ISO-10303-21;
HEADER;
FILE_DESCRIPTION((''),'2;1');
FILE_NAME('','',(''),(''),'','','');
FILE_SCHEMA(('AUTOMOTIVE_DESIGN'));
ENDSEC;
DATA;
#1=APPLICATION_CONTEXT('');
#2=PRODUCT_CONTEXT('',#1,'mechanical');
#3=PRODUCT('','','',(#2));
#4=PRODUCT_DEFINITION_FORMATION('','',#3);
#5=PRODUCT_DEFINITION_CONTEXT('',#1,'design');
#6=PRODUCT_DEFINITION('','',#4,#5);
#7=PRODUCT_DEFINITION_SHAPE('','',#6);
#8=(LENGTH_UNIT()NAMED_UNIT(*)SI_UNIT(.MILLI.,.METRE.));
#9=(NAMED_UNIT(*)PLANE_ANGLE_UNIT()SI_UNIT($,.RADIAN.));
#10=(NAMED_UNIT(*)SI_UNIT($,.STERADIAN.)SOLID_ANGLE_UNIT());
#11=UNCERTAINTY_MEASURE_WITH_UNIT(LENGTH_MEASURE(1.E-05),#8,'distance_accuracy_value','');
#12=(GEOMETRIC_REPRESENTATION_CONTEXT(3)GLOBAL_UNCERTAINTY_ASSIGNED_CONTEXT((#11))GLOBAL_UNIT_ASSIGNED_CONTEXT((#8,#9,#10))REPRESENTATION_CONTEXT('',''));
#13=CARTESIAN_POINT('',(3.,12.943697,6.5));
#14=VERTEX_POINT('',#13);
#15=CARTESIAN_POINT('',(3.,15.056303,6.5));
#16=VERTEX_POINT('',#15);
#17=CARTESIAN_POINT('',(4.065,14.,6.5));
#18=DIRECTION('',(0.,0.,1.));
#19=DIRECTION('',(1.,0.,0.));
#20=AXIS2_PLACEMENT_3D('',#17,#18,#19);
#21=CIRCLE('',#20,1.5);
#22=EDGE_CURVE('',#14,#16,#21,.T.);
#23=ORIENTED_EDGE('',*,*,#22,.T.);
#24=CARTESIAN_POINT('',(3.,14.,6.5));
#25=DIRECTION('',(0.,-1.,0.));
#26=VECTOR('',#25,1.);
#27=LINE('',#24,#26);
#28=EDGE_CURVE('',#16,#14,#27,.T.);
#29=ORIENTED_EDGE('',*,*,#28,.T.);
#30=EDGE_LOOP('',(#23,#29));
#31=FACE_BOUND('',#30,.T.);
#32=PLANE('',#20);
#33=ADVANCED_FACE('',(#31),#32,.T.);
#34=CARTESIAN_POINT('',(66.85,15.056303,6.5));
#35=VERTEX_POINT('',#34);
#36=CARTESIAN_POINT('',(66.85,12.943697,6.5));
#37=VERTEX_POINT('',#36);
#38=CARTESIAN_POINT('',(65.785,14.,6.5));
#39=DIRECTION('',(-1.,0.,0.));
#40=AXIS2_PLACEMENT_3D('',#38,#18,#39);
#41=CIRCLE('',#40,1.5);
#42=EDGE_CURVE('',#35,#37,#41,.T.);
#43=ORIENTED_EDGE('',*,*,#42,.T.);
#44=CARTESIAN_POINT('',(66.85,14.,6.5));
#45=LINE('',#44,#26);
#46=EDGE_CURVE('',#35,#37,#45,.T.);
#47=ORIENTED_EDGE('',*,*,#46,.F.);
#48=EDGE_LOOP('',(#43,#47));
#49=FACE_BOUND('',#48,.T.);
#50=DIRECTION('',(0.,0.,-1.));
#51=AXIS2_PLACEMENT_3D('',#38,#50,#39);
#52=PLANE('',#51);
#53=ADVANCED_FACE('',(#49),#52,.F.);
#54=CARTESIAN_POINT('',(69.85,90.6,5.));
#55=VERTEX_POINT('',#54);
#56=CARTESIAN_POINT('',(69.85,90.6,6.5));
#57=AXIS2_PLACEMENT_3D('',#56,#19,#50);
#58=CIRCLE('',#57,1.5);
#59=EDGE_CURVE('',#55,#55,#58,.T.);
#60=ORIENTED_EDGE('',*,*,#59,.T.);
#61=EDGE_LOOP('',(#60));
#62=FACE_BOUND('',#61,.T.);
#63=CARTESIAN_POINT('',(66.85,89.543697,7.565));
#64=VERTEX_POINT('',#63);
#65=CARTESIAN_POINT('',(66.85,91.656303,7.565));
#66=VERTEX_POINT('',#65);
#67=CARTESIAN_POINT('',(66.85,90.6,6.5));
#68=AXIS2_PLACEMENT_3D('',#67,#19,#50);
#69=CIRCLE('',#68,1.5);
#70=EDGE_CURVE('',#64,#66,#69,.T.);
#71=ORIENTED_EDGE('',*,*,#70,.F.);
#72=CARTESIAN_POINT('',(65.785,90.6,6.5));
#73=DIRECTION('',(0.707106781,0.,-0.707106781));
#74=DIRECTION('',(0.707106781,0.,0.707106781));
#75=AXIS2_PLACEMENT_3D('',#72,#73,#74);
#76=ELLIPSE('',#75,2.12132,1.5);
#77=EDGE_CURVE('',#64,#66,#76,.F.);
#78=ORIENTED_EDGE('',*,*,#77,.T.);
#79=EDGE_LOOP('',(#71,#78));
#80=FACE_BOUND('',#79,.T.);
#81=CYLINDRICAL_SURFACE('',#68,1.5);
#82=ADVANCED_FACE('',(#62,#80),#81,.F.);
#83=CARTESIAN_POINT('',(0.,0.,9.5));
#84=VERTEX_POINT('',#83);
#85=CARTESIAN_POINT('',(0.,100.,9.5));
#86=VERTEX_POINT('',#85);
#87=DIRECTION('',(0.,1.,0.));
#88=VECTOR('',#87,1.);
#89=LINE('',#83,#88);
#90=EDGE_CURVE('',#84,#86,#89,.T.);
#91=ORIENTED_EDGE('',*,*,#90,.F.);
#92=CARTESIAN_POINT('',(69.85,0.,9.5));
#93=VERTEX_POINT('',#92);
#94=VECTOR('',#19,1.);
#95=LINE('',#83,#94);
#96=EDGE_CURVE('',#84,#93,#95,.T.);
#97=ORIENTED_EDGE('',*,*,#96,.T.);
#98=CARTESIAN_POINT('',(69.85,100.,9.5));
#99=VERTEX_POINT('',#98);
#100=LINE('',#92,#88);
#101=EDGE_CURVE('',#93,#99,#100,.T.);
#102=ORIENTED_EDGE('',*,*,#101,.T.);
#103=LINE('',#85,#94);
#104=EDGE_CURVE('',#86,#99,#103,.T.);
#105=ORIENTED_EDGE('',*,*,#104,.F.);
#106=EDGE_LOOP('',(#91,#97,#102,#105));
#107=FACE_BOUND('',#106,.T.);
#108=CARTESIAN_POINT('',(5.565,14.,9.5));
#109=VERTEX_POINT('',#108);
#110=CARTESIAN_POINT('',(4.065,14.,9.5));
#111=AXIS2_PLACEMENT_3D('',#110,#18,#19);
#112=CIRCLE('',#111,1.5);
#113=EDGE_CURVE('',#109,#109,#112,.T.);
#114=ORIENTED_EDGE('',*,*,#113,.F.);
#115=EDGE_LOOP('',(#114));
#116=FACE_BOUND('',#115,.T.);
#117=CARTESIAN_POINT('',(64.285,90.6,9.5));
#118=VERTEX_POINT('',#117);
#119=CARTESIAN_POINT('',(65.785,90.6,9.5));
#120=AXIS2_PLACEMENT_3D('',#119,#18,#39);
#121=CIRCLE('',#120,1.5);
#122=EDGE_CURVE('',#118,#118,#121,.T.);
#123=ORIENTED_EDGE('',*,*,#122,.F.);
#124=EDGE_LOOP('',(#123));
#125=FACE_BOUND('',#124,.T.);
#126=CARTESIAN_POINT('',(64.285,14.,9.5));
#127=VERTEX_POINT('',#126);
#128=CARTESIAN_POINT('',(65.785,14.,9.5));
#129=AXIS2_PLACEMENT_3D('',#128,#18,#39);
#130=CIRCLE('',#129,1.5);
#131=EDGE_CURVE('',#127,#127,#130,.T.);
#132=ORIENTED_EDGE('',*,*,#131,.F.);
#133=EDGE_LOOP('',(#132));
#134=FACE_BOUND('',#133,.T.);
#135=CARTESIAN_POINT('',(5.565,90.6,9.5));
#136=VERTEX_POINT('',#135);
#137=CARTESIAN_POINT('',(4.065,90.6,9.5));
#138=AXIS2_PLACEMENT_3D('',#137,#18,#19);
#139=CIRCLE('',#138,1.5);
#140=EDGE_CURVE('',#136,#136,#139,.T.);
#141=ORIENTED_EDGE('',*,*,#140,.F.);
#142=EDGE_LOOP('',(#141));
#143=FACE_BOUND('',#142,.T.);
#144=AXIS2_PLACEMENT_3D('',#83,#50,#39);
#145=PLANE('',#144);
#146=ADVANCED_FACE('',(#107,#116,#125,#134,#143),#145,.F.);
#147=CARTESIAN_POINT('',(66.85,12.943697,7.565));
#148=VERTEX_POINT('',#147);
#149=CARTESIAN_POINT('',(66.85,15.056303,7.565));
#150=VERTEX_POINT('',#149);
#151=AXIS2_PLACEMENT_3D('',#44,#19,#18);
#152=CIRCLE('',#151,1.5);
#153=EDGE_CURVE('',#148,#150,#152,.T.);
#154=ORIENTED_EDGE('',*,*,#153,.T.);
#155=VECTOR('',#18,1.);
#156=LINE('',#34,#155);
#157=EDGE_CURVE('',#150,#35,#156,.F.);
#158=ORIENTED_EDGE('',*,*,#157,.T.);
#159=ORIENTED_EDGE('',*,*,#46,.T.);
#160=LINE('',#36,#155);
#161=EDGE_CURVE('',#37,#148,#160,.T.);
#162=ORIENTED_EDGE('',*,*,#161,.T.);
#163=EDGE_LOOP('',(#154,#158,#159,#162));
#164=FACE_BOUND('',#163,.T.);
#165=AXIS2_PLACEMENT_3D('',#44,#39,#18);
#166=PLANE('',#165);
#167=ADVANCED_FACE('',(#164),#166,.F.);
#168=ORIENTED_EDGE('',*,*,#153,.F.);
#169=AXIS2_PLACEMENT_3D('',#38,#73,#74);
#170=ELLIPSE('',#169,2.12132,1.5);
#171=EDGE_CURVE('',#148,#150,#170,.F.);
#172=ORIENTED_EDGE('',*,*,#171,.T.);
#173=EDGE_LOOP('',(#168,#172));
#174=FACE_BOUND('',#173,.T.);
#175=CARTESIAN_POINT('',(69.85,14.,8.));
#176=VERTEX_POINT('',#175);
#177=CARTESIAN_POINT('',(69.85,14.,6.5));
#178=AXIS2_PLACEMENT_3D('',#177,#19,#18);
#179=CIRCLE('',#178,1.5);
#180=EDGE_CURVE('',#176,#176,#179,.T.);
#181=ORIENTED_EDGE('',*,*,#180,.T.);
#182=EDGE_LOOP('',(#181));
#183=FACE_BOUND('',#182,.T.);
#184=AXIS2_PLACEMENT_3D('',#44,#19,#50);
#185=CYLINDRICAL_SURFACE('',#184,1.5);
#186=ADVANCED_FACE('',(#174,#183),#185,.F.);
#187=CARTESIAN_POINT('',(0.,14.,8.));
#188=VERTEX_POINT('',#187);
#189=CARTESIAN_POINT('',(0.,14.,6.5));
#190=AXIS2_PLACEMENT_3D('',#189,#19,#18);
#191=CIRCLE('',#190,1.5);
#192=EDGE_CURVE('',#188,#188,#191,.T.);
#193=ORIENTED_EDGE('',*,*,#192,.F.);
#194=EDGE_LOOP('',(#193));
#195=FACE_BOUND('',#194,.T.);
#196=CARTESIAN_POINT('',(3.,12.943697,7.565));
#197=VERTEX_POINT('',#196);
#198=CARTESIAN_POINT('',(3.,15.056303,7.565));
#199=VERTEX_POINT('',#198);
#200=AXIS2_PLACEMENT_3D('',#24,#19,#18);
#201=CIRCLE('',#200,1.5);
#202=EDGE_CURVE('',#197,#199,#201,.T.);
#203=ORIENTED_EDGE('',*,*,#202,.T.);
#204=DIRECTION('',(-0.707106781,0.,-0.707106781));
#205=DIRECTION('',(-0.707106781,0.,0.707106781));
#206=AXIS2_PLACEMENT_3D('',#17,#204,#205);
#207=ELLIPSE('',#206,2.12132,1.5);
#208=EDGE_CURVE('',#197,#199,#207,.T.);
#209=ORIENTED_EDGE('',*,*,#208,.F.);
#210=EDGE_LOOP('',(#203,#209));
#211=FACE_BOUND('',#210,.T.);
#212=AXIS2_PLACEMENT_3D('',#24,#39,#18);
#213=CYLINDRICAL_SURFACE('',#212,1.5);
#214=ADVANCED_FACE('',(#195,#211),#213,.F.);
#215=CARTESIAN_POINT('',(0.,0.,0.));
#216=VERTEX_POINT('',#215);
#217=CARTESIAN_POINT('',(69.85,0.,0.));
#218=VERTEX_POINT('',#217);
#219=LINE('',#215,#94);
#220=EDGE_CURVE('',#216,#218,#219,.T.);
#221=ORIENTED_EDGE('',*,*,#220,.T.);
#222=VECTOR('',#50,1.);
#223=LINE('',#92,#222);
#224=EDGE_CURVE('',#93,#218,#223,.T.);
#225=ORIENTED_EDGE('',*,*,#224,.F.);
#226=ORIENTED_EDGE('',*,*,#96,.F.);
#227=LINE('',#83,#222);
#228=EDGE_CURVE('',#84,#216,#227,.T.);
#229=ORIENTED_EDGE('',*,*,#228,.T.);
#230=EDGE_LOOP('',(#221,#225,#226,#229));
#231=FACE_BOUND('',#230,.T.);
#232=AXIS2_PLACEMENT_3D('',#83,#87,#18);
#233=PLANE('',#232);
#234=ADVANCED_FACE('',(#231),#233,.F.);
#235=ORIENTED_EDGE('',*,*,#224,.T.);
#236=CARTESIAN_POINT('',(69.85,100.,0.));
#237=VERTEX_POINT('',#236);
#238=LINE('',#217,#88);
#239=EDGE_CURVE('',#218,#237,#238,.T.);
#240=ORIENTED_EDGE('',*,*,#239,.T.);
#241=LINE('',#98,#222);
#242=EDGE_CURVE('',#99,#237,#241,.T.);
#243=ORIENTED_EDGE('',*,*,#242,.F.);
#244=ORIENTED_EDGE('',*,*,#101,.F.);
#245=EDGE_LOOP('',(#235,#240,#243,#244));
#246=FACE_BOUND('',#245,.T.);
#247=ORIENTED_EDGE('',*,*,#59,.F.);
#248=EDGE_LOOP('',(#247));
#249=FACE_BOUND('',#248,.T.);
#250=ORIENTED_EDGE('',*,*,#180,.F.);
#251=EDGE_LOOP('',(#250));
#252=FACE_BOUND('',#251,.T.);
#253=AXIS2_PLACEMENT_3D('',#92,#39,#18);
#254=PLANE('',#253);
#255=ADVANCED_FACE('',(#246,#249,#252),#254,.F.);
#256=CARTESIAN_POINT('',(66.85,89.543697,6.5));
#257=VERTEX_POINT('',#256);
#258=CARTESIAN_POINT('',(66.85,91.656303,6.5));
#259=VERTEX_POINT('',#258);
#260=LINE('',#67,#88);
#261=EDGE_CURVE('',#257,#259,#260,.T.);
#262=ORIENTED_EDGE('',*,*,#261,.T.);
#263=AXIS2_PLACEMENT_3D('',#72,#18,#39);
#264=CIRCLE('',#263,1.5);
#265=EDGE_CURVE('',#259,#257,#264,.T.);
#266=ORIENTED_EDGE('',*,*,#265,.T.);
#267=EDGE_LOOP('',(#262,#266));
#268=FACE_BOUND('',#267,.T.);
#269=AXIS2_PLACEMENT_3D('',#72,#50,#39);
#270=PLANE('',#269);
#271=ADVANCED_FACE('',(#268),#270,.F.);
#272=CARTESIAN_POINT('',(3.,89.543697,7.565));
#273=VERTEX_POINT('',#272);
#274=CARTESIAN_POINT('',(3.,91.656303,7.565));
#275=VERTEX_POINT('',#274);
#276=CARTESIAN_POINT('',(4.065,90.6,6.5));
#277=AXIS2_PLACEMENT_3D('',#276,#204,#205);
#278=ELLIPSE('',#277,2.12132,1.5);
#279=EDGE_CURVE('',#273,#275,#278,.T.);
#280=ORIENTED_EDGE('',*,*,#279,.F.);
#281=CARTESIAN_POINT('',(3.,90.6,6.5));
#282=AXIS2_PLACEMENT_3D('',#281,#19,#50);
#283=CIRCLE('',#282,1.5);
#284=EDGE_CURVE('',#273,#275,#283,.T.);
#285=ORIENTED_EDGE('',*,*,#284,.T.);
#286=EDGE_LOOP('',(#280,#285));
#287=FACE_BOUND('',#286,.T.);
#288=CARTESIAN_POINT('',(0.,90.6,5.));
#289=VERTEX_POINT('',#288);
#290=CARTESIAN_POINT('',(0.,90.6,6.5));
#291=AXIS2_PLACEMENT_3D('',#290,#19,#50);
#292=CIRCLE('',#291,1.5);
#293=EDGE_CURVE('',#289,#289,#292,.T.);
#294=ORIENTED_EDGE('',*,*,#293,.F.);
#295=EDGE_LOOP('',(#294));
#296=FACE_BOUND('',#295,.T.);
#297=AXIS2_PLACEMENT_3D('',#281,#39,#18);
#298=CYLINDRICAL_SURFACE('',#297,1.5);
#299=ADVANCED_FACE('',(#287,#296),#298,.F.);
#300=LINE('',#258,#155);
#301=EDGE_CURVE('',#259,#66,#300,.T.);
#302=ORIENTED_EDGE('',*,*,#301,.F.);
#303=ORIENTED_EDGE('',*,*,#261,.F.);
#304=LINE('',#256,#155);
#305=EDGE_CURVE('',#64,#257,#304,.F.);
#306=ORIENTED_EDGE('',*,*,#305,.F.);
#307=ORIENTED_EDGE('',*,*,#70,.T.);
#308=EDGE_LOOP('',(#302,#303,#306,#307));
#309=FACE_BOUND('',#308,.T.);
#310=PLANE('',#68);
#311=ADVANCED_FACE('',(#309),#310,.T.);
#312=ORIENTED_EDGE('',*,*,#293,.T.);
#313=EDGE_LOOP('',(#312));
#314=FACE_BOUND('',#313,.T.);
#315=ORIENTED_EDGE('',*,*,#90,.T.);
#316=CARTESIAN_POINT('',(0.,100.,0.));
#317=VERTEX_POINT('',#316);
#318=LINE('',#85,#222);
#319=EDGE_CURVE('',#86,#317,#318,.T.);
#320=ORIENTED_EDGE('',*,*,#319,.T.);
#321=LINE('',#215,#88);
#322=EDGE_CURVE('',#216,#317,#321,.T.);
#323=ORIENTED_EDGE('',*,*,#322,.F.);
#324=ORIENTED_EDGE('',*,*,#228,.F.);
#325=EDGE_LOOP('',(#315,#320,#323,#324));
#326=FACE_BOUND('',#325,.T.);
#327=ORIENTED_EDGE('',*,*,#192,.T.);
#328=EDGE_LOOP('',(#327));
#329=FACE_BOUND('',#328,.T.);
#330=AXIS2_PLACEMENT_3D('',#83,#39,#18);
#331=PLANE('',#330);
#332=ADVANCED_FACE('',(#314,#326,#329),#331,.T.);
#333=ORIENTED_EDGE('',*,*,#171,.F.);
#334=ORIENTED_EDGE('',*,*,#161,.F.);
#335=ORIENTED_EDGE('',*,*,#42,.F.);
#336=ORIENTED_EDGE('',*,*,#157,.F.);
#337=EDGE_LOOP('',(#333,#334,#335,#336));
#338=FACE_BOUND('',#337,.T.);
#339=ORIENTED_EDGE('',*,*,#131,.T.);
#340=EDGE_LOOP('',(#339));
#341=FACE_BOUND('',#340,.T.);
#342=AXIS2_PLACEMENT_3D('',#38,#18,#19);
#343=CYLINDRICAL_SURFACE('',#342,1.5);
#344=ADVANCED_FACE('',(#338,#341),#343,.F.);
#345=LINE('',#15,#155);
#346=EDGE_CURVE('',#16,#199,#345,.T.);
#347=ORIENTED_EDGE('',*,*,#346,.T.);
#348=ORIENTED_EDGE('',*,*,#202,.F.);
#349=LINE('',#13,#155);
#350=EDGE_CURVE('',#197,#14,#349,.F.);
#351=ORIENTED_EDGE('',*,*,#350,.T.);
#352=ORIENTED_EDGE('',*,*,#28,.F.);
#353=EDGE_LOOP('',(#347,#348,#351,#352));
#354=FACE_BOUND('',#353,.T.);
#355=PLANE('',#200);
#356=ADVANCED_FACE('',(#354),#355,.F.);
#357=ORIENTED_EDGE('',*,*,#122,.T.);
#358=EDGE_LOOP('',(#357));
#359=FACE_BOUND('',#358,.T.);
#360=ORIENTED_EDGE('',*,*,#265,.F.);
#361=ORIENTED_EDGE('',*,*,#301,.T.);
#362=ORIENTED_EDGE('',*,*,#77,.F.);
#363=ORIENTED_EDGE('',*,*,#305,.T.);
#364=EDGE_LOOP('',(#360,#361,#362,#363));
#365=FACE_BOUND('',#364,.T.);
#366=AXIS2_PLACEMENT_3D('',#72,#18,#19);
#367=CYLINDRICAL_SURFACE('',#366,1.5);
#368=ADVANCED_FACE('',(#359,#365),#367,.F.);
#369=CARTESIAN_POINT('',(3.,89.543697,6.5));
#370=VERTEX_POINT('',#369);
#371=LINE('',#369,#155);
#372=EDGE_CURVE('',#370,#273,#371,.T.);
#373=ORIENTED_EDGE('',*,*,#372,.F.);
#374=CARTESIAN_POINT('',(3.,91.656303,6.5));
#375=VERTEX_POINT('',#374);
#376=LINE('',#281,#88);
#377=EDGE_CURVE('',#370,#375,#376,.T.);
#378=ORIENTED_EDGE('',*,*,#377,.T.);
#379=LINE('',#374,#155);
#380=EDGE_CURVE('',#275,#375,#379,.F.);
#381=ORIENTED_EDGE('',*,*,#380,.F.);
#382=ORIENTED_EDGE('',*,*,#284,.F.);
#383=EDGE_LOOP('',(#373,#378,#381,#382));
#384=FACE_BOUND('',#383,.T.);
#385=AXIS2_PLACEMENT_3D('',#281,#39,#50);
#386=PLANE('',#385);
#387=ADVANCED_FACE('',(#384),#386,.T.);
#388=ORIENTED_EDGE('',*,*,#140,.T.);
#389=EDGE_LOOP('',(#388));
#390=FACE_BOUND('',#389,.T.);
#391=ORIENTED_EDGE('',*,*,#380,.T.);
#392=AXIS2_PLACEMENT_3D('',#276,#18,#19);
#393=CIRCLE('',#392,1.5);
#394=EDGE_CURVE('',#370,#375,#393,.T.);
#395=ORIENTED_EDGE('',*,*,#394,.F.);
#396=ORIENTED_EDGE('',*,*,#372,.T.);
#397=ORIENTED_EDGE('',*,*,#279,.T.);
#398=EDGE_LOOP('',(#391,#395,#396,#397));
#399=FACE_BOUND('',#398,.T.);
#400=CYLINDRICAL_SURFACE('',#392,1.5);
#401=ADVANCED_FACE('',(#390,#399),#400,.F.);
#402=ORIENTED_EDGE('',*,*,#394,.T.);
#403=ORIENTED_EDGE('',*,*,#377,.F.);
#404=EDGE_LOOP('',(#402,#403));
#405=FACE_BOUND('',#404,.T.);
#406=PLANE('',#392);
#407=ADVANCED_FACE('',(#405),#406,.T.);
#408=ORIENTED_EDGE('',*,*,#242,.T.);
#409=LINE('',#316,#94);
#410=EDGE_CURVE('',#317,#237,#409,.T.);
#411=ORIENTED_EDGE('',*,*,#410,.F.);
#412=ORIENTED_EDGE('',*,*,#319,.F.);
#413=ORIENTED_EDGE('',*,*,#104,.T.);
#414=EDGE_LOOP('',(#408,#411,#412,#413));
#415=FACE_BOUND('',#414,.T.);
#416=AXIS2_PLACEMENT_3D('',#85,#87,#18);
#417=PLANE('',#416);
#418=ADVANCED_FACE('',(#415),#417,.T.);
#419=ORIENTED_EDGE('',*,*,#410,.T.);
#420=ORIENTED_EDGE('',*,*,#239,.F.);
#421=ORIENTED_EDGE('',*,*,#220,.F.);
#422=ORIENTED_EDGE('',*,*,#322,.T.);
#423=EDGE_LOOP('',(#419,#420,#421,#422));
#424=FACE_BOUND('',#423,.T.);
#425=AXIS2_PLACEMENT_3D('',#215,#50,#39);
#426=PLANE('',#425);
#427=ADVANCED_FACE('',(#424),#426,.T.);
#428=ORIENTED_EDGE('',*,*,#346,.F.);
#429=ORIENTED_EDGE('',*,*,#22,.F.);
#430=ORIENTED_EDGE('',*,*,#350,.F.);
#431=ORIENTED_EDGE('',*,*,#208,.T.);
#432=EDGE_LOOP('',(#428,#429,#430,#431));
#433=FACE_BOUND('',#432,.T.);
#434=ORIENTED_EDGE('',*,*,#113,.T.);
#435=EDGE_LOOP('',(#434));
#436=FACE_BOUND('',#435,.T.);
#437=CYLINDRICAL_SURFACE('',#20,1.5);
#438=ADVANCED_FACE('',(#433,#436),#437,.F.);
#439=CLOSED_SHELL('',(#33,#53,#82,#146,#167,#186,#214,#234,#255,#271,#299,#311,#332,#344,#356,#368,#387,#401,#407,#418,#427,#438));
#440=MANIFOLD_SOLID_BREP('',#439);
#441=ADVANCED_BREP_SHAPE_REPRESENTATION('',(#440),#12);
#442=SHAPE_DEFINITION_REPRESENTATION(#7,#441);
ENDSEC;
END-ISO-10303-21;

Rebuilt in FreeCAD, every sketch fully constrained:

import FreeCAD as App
import Part
import Sketcher
Q = App.Units.Quantity

doc = App.newDocument("Part")
body = doc.addObject("PartDesign::Body", "Body")

# Sketch on XY plane
sketch1 = body.newObject("Sketcher::SketchObject", "Sketch")
sketch1.AttachmentSupport = (doc.getObject("XY_Plane"), [""])
sketch1.MapMode = "FlatFace"
sketch1.addGeometry([
    Part.LineSegment(App.Vector(0, 100, 0), App.Vector(0, 0, 0)),
    Part.LineSegment(App.Vector(0, 0, 0), App.Vector(69.85, 0, 0)),
    Part.LineSegment(App.Vector(69.85, 0, 0), App.Vector(69.85, 100, 0)),
    Part.LineSegment(App.Vector(69.85, 100, 0), App.Vector(0, 100, 0)),
], False)
sketch1.addConstraint([
    Sketcher.Constraint("Coincident", 0, 2, 1, 1),
    Sketcher.Constraint("Coincident", 1, 2, 2, 1),
    Sketcher.Constraint("Coincident", 2, 2, 3, 1),
    Sketcher.Constraint("Coincident", 3, 2, 0, 1),
    Sketcher.Constraint("Vertical", 0),
    Sketcher.Constraint("Horizontal", 1),
    Sketcher.Constraint("Vertical", 2),
    Sketcher.Constraint("Horizontal", 3),
    Sketcher.Constraint("Coincident", 0, 2, -1, 1),
    Sketcher.Constraint("DistanceY", 0, 2, 0, 1, Q("100 mm")),
    Sketcher.Constraint("DistanceX", 1, 1, 1, 2, Q("69.85 mm")),
])
pad1 = body.newObject("PartDesign::Pad", "Pad")
pad1.Profile = sketch1
pad1.Length = 9.5

# Sketch on YZ plane
sketch2 = body.newObject("Sketcher::SketchObject", "Sketch001")
sketch2.AttachmentSupport = (doc.getObject("YZ_Plane"), [""])
sketch2.MapMode = "FlatFace"
sketch2.AttachmentOffset = App.Placement(App.Vector(0, 0, 69.85), App.Rotation())
sketch2.addGeometry([
    Part.Circle(App.Vector(90.6, 6.5, 0), App.Vector(0, 0, 1), 1.5),
    Part.Circle(App.Vector(14, 6.5, 0), App.Vector(0, 0, 1), 1.5),
], False)
sketch2.addConstraint([
    Sketcher.Constraint("Equal", 0, 1),
    Sketcher.Constraint("Horizontal", 0, 3, 1, 3),
    Sketcher.Constraint("Diameter", 0, Q("3 mm")),
    Sketcher.Constraint("DistanceX", -1, 1, 1, 3, Q("14 mm")),
    Sketcher.Constraint("DistanceX", -1, 1, 0, 3, Q("90.6 mm")),
    Sketcher.Constraint("DistanceY", -1, 1, 0, 3, Q("6.5 mm")),
])
pocket1 = body.newObject("PartDesign::Pocket", "Pocket")
pocket1.Profile = sketch2
pocket1.Length = 3
doc.recompute()

datumplane = body.newObject("PartDesign::Plane", "DatumPlane")
datumplane.AttachmentSupport = (doc.getObject("YZ_Plane"), [""])
datumplane.MapMode = "FlatFace"
datumplane.AttachmentOffset = App.Placement(App.Vector(0, 0, 34.925), App.Rotation())
mirrored = body.newObject("PartDesign::Mirrored", "Mirrored")
mirrored.Originals = [pocket1]
mirrored.MirrorPlane = (datumplane, [""])
body.Tip = mirrored

# Sketch on XY plane
sketch3 = body.newObject("Sketcher::SketchObject", "Sketch002")
sketch3.AttachmentSupport = (doc.getObject("XY_Plane"), [""])
sketch3.MapMode = "FlatFace"
sketch3.AttachmentOffset = App.Placement(App.Vector(0, 0, 9.5), App.Rotation())
sketch3.addGeometry([
    Part.Circle(App.Vector(4.065, 90.6, 0), App.Vector(0, 0, 1), 1.5),
    Part.Circle(App.Vector(65.785, 90.6, 0), App.Vector(0, 0, 1), 1.5),
    Part.Circle(App.Vector(4.065, 14, 0), App.Vector(0, 0, 1), 1.5),
    Part.Circle(App.Vector(65.785, 14, 0), App.Vector(0, 0, 1), 1.5),
], False)
sketch3.addConstraint([
    Sketcher.Constraint("Equal", 0, 1),
    Sketcher.Constraint("Equal", 1, 2),
    Sketcher.Constraint("Equal", 2, 3),
    Sketcher.Constraint("Horizontal", 0, 3, 1, 3),
    Sketcher.Constraint("Horizontal", 2, 3, 3, 3),
    Sketcher.Constraint("Vertical", 0, 3, 2, 3),
    Sketcher.Constraint("Vertical", 1, 3, 3, 3),
    Sketcher.Constraint("Diameter", 0, Q("3 mm")),
    Sketcher.Constraint("DistanceY", -1, 1, 2, 3, Q("14 mm")),
    Sketcher.Constraint("DistanceY", -1, 1, 0, 3, Q("90.6 mm")),
    Sketcher.Constraint("DistanceX", 0, 3, 1, 3, Q("61.72 mm")),
    Sketcher.Constraint("DistanceX", -1, 1, 0, 3, Q("4.065 mm")),
])
pocket2 = body.newObject("PartDesign::Pocket", "Pocket001")
pocket2.Profile = sketch3
pocket2.Length = 3

doc.recompute()
